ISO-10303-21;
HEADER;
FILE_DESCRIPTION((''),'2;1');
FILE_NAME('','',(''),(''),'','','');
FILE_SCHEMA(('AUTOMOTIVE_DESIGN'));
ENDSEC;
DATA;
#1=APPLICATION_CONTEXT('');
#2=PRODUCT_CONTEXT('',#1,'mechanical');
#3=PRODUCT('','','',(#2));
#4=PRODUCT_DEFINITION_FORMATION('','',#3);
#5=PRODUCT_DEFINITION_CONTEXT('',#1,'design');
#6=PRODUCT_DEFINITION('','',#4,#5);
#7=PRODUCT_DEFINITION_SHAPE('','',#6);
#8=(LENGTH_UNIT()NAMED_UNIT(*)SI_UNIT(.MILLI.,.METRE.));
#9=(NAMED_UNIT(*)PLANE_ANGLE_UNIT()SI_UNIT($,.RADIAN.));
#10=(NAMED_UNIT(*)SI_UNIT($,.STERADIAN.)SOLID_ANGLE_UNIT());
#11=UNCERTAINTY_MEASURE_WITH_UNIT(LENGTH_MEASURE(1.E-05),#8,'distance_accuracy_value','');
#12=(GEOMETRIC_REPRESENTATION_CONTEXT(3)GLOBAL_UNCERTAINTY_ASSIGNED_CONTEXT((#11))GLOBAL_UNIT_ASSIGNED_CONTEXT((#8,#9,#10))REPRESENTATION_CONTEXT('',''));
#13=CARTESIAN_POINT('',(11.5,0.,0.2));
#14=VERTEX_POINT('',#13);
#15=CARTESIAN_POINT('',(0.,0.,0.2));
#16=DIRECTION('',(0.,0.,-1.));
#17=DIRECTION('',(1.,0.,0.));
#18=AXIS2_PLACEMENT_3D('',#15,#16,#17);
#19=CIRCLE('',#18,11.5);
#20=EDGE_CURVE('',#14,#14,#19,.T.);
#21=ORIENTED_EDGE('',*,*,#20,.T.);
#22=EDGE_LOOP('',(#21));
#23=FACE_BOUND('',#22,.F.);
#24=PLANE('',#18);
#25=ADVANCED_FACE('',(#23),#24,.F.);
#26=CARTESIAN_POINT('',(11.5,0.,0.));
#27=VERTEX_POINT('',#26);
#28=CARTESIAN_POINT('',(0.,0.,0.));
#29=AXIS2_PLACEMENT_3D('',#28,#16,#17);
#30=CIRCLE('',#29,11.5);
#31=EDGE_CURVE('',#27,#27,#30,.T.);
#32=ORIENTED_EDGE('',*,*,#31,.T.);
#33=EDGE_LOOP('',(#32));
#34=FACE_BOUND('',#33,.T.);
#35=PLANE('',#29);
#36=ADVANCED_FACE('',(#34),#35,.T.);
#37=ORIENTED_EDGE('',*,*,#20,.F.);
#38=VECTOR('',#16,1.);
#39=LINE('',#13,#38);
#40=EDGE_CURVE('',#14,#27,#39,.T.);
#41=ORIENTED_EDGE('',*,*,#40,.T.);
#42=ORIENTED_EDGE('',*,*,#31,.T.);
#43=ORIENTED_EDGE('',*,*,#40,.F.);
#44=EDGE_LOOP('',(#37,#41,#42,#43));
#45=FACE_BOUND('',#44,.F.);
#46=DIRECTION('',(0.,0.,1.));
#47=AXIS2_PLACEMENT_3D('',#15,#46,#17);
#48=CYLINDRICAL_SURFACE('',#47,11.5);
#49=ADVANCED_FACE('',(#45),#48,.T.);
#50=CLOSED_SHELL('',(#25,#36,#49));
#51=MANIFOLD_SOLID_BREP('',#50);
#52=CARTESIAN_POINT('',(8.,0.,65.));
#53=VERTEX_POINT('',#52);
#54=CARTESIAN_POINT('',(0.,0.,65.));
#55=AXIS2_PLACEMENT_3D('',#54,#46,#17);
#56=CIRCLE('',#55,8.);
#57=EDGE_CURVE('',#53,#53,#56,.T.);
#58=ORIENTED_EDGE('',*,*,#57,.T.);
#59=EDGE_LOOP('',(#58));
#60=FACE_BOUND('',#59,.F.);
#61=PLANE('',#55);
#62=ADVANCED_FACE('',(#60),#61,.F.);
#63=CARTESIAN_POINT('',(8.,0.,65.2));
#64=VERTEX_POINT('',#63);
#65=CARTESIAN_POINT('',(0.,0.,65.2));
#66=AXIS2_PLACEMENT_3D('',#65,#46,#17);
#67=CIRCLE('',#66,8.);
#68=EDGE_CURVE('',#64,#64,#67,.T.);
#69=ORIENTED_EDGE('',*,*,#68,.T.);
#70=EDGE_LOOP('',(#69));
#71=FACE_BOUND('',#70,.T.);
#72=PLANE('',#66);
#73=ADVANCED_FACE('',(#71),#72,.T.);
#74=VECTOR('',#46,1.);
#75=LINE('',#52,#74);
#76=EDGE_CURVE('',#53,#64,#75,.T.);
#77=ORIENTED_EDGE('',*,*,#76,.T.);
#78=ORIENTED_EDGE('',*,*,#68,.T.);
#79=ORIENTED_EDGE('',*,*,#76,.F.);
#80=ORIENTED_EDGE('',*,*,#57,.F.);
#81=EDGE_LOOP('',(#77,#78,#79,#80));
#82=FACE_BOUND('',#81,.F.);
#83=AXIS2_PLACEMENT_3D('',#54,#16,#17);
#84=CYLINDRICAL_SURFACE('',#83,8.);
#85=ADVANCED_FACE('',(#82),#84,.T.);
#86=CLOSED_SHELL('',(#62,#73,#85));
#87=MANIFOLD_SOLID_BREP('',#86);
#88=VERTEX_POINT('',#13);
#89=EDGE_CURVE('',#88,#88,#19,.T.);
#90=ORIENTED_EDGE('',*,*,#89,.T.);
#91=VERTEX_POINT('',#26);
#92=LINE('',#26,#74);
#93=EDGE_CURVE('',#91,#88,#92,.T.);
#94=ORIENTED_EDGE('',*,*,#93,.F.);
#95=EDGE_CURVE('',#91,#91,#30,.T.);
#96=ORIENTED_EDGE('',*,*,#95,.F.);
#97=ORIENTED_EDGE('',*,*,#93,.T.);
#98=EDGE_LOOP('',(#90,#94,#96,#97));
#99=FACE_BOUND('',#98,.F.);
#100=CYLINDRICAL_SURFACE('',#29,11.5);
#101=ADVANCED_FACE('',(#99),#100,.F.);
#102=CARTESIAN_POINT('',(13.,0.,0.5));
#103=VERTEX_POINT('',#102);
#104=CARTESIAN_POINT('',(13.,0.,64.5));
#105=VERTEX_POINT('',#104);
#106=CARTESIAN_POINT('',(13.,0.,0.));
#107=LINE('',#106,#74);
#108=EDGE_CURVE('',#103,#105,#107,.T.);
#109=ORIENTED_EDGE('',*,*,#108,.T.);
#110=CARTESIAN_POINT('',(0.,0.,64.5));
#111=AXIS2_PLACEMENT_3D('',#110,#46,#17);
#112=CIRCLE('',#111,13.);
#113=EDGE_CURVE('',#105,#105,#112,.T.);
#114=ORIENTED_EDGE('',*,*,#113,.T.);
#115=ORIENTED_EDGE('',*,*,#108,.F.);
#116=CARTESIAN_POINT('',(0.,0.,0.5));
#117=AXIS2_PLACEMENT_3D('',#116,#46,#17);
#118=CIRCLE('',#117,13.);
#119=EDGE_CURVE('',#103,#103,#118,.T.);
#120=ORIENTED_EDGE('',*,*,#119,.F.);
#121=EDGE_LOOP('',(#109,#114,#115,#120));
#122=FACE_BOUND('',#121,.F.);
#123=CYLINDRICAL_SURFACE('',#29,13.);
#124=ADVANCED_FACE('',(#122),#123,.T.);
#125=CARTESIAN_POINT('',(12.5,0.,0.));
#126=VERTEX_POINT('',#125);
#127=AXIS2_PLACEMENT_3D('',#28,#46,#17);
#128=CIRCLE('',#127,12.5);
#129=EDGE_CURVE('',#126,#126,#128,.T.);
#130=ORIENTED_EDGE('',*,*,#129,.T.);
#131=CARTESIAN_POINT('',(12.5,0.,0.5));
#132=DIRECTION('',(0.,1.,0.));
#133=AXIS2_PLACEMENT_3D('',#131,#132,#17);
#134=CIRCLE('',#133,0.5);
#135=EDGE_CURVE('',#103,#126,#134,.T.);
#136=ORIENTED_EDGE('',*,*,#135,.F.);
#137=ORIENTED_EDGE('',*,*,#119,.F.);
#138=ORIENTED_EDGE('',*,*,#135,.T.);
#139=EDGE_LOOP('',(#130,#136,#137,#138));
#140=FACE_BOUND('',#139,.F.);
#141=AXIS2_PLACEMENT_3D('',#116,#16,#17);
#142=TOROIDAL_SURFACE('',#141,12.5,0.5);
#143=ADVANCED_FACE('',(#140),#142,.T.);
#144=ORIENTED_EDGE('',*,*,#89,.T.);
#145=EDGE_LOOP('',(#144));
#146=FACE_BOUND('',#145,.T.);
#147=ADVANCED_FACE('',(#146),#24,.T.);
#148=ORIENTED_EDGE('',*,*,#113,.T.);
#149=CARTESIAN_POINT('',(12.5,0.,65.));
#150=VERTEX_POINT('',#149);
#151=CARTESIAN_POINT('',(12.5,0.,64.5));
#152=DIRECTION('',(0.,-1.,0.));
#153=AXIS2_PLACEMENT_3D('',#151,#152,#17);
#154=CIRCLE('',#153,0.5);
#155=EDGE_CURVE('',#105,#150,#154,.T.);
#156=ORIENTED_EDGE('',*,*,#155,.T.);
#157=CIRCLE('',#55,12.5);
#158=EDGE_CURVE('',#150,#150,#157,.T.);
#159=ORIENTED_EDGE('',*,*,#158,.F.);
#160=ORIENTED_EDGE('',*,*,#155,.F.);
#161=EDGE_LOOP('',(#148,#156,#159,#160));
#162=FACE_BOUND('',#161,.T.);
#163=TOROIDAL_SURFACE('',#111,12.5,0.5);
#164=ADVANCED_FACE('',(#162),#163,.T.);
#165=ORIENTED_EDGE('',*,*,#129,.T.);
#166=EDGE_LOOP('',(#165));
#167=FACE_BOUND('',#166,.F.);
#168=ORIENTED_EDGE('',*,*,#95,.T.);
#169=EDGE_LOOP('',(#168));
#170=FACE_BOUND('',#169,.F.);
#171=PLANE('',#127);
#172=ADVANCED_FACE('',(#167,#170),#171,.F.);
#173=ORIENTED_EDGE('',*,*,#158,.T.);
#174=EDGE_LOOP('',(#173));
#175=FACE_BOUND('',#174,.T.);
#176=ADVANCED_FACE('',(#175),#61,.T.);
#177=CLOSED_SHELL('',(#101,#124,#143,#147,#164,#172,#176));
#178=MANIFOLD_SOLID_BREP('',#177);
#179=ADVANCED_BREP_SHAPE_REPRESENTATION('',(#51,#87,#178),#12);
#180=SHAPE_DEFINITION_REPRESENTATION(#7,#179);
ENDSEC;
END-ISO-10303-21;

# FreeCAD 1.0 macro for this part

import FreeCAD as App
import Part
import Sketcher
from FreeCAD import Vector


def edges_at(feature, points):
    """Names of the edges that pass closest to the given points."""
    edges = feature.Shape.Edges
    near = lambda p: min(range(len(edges)), key=lambda i: edges[i].distToShape(Part.Vertex(*p))[0])
    return sorted({f"Edge{near(p) + 1}" for p in points})

doc = App.newDocument("Part")
body = doc.addObject("PartDesign::Body", "Body")

# Sketch on XY plane
sketch1 = body.newObject("Sketcher::SketchObject", "Sketch")
sketch1.AttachmentSupport = (doc.getObject("XY_Plane"), [""])
sketch1.MapMode = "FlatFace"
sketch1.addGeometry(Part.Circle(Vector(0, 0, 0), Vector(0, 0, 1), 13), False)
sketch1.addConstraint(Sketcher.Constraint("Coincident", 0, 3, -1, 1))
sketch1.addConstraint(Sketcher.Constraint("Diameter", 0, 26.0))
pad1 = body.newObject("PartDesign::Pad", "Pad")
pad1.Profile = sketch1
pad1.Length = 65

# Sketch on XY plane
sketch2 = body.newObject("Sketcher::SketchObject", "Sketch001")
sketch2.AttachmentSupport = (doc.getObject("XY_Plane"), [""])
sketch2.MapMode = "FlatFace"
sketch2.addGeometry(Part.Circle(Vector(0, 0, 0), Vector(0, 0, 1), 12), False)
sketch2.addConstraint(Sketcher.Constraint("Coincident", 0, 3, -1, 1))
sketch2.addConstraint(Sketcher.Constraint("Diameter", 0, 23.0))
pocket1 = body.newObject("PartDesign::Pocket", "Pocket")
pocket1.Profile = sketch2
pocket1.Length = 0.2
pocket1.Reversed = True
doc.recompute()

fillet = body.newObject("PartDesign::Fillet", "Fillet")
fillet.Base = (pocket1, edges_at(pocket1, [(-13, 0, 65), (-13, 0, 0)]))
fillet.Radius = 0.5
body2 = doc.addObject("PartDesign::Body", "Body001")

# Sketch on XY plane
sketch3 = body2.newObject("Sketcher::SketchObject", "Sketch002")
sketch3.AttachmentSupport = (doc.getObject("XY_Plane001"), [""])
sketch3.MapMode = "FlatFace"
sketch3.AttachmentOffset = App.Placement(Vector(0, 0, 65), App.Rotation())
sketch3.addGeometry(Part.Circle(Vector(0, 0, 0), Vector(0, 0, 1), 8), False)
sketch3.addConstraint(Sketcher.Constraint("Coincident", 0, 3, -1, 1))
sketch3.addConstraint(Sketcher.Constraint("Diameter", 0, 16.0))
pad2 = body2.newObject("PartDesign::Pad", "Pad001")
pad2.Profile = sketch3
pad2.Length = 0.2
body3 = doc.addObject("PartDesign::Body", "Body002")

# Sketch on XY plane
sketch4 = body3.newObject("Sketcher::SketchObject", "Sketch003")
sketch4.AttachmentSupport = (doc.getObject("XY_Plane002"), [""])
sketch4.MapMode = "FlatFace"
sketch4.AttachmentOffset = App.Placement(Vector(0, 0, 0.2), App.Rotation())
sketch4.addGeometry(Part.Circle(Vector(0, 0, 0), Vector(0, 0, 1), 12), False)
sketch4.addConstraint(Sketcher.Constraint("Coincident", 0, 3, -1, 1))
sketch4.addConstraint(Sketcher.Constraint("Diameter", 0, 23.0))
pad3 = body3.newObject("PartDesign::Pad", "Pad002")
pad3.Profile = sketch4
pad3.Length = 0.2
pad3.Reversed = True

doc.recompute()
